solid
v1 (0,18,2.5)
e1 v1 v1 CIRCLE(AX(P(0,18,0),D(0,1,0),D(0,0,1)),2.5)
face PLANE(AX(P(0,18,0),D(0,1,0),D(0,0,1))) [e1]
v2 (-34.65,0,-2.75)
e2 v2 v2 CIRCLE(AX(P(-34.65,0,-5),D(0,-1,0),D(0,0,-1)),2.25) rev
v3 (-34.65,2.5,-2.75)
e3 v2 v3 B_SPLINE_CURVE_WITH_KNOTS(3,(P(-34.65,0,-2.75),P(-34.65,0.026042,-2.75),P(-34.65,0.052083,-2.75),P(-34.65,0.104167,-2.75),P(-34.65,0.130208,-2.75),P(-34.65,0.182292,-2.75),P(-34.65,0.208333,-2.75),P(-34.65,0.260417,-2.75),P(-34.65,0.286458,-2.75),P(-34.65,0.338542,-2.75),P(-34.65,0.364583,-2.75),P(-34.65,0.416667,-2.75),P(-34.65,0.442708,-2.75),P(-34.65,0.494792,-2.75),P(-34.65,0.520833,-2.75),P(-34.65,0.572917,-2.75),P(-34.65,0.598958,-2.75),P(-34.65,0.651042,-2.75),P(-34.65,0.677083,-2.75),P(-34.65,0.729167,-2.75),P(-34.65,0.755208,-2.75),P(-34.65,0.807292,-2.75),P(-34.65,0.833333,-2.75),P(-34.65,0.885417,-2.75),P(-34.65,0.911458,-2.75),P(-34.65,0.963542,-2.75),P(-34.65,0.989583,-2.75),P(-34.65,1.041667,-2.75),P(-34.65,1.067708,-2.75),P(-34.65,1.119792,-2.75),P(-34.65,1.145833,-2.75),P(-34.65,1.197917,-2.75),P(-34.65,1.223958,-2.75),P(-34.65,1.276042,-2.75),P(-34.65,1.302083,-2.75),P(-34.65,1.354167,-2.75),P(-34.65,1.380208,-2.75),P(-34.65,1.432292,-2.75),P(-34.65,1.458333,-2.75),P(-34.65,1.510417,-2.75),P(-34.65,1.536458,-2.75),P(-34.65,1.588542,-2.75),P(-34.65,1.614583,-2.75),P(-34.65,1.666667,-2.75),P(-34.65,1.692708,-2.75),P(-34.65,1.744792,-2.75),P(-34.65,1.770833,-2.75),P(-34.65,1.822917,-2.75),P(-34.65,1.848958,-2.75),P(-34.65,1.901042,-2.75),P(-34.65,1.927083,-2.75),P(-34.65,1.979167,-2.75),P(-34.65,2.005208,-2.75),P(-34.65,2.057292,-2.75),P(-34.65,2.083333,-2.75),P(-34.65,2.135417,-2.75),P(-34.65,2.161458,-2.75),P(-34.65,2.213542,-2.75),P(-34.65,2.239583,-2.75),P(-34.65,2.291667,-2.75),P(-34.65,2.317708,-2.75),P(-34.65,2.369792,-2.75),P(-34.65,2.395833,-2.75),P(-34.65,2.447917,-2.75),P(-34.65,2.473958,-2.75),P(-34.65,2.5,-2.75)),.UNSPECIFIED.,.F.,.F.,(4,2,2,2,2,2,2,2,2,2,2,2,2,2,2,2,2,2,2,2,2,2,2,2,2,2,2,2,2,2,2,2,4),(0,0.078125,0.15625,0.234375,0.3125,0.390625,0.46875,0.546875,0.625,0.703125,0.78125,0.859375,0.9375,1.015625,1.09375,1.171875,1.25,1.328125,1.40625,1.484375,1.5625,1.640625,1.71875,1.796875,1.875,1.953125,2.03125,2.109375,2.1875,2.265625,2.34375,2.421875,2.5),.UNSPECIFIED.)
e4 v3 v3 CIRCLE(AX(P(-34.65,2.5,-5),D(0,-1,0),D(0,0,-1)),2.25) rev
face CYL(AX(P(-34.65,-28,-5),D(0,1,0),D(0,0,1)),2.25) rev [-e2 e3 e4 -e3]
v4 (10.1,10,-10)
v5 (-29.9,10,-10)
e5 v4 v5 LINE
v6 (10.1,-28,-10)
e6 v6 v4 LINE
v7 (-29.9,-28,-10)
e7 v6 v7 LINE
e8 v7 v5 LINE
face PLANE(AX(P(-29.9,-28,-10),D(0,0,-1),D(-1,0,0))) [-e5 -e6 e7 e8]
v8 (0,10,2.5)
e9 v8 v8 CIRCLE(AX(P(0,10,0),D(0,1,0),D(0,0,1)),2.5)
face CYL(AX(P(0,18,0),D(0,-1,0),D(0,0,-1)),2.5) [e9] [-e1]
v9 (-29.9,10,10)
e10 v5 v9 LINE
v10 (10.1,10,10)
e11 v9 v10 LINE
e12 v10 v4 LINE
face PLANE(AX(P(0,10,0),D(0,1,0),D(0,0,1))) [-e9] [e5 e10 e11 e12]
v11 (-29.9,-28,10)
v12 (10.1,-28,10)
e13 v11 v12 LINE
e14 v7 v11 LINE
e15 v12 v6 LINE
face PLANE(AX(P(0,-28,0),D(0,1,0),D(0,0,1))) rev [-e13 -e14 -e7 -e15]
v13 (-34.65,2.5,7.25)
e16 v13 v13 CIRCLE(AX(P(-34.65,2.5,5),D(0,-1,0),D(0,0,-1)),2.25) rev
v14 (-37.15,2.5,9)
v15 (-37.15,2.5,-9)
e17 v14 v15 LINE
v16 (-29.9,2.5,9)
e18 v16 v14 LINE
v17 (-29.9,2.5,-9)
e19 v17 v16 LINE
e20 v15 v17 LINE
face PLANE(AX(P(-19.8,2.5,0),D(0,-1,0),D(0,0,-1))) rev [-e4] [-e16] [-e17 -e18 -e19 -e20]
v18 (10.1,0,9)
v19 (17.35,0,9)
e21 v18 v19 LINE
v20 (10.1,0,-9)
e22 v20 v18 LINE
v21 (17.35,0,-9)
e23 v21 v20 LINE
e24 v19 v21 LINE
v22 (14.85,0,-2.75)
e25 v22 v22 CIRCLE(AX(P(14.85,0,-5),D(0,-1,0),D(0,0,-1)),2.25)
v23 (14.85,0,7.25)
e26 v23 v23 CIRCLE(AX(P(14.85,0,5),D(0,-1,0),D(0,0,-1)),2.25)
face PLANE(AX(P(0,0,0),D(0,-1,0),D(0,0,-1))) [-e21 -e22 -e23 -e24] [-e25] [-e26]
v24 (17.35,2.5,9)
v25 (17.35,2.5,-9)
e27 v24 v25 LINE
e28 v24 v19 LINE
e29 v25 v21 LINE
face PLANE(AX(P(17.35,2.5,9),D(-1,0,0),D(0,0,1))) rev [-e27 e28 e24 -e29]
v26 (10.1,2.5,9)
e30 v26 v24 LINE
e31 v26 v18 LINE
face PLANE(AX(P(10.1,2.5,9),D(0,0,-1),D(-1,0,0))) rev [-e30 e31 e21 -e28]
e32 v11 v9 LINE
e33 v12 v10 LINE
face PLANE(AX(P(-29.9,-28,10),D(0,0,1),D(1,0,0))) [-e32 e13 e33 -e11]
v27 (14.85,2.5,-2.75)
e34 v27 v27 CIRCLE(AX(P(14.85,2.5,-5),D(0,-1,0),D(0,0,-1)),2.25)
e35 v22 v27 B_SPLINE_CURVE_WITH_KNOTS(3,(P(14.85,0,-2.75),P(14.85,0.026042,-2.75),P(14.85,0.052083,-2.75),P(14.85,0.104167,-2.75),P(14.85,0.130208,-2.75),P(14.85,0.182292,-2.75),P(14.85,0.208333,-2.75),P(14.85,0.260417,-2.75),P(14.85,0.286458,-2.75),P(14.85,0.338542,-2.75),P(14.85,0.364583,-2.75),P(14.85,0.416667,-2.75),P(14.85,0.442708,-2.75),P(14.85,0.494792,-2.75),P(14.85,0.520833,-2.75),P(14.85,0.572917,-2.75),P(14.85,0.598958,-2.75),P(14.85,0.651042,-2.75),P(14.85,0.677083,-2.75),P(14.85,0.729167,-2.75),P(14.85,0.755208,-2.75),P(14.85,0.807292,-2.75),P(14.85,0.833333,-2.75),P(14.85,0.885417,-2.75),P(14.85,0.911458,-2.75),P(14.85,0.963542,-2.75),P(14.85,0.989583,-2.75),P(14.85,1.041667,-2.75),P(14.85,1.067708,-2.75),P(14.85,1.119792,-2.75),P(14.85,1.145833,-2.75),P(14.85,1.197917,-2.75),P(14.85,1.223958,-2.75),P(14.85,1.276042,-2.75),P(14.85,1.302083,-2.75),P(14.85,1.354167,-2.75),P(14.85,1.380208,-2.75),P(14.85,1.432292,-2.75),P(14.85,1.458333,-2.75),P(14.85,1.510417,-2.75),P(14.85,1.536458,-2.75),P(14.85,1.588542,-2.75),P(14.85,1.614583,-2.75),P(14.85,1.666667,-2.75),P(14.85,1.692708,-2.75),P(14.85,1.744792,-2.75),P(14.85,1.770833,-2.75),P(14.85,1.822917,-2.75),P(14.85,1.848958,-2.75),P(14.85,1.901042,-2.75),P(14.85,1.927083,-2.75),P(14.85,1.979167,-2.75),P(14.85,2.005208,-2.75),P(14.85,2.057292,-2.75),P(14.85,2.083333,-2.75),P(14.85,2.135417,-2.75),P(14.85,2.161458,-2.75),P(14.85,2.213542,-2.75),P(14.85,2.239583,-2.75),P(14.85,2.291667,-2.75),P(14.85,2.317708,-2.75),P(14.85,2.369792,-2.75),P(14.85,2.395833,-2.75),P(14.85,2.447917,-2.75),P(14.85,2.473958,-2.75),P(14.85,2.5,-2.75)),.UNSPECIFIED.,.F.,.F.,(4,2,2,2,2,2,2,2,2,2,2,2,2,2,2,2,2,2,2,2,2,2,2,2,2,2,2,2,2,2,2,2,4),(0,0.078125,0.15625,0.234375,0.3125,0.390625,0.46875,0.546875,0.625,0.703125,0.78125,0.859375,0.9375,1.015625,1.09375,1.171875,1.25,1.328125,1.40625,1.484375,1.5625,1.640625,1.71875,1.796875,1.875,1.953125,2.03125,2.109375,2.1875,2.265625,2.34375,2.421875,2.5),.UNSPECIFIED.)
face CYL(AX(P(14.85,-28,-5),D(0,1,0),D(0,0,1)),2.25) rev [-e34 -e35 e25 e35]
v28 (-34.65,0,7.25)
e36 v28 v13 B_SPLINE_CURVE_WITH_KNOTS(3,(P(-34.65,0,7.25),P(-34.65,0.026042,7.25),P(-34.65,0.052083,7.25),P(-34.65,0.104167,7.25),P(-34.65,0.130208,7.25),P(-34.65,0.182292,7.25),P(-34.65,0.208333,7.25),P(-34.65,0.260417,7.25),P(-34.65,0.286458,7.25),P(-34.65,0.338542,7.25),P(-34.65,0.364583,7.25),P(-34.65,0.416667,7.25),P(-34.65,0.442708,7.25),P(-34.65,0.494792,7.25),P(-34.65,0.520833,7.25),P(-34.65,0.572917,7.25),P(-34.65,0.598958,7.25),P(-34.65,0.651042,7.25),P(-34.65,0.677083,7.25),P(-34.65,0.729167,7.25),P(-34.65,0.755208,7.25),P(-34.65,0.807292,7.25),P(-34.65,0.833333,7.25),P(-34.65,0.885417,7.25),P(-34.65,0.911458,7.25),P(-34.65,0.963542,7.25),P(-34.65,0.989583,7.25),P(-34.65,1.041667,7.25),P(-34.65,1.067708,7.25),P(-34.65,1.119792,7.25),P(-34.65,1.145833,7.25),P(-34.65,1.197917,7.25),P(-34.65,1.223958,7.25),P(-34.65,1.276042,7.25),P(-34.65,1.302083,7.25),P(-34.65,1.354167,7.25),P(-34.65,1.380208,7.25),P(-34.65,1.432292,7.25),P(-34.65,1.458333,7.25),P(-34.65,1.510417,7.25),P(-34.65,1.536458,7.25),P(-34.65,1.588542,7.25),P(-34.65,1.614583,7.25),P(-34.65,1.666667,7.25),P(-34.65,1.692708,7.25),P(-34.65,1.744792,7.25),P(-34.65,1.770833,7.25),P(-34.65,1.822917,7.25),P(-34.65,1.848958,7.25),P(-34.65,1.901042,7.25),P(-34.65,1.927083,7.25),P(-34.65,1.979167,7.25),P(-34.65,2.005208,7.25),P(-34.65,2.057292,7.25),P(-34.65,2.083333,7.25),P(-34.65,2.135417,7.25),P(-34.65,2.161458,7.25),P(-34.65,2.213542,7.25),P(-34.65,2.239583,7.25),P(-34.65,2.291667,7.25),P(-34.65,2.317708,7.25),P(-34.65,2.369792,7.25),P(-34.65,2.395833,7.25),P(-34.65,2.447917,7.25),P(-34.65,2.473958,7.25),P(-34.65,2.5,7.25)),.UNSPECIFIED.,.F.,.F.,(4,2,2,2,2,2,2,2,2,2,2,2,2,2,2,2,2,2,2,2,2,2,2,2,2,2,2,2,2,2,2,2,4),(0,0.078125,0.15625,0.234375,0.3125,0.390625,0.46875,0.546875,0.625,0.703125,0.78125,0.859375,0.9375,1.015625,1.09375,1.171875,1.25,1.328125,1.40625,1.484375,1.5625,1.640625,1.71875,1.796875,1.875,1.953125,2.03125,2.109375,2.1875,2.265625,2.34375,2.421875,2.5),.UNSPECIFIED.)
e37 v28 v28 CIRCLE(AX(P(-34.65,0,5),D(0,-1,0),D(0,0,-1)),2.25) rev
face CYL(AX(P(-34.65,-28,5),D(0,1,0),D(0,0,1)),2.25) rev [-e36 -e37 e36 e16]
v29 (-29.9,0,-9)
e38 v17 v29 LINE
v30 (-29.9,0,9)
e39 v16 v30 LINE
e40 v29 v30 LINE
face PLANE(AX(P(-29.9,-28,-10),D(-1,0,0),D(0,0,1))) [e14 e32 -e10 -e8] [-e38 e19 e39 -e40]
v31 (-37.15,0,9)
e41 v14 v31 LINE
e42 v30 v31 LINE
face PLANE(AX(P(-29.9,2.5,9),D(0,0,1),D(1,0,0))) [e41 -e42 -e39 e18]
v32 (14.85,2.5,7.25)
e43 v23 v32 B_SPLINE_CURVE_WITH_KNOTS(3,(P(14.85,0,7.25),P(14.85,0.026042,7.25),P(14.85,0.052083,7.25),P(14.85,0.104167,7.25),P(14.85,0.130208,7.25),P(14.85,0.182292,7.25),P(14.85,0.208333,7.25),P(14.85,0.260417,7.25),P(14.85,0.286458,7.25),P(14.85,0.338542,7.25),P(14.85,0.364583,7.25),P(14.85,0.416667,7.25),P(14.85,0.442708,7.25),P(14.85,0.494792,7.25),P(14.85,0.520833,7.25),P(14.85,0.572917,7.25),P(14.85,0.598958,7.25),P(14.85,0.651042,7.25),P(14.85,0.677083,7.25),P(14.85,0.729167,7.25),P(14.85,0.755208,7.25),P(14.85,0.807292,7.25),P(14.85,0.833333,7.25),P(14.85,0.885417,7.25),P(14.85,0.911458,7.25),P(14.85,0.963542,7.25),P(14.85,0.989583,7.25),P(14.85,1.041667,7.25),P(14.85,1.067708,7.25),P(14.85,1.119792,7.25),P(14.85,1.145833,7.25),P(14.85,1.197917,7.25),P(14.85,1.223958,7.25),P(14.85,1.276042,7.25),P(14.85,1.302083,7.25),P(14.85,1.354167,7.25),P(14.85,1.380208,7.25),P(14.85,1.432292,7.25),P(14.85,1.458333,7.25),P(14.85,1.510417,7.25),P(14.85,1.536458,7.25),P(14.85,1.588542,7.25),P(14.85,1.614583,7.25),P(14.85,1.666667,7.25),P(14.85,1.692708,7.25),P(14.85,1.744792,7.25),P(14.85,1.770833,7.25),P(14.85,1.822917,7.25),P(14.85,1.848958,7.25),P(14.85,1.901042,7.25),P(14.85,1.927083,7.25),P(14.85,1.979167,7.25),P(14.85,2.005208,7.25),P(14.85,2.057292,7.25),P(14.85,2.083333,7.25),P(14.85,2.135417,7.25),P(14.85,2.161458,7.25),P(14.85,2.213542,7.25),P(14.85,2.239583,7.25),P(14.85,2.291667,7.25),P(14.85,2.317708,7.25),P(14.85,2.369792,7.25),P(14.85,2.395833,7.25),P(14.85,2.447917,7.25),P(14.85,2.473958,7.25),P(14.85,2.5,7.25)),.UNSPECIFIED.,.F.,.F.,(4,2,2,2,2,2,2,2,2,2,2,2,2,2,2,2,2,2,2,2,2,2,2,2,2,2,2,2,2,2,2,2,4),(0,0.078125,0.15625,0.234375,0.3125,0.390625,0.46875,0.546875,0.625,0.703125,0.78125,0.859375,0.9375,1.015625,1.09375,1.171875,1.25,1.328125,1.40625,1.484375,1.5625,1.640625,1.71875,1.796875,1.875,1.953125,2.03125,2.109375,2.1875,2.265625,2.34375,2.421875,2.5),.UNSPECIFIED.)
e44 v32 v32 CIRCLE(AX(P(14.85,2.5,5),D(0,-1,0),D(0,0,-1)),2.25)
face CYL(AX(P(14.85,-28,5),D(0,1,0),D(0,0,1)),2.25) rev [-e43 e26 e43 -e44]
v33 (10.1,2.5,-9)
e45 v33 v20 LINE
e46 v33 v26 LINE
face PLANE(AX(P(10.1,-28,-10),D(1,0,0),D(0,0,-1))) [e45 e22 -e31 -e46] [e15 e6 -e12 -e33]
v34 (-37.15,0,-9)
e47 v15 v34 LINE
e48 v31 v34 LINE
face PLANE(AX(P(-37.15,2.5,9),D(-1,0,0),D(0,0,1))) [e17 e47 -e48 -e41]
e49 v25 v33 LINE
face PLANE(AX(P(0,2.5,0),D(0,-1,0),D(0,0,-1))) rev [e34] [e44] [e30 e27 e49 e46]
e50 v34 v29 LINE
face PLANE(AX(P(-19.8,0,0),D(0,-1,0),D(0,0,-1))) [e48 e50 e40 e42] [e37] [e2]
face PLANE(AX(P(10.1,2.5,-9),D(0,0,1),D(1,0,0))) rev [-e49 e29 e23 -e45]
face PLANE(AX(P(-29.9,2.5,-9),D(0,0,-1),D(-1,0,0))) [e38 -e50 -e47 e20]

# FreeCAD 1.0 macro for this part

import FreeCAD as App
import Part
import Sketcher

V = App.Vector

doc = App.newDocument("Part")
body = doc.addObject("PartDesign::Body", "Body")

sketch1 = doc.addObject("Sketcher::SketchObject", "Sketch")
body.addObject(sketch1)
sketch1.AttachmentSupport = (doc.XZ_Plane, [""])
sketch1.MapMode = "FlatFace"
sketch1.addGeometry([
    Part.LineSegment(V(-30, -10, 0), V(-30, 10, 0)),
    Part.LineSegment(V(-30, 10, 0), V(10, 10, 0)),
    Part.LineSegment(V(10, 10, 0), V(10, -10, 0)),
    Part.LineSegment(V(10, -10, 0), V(-30, -10, 0)),
], False)
sketch1.addConstraint([
    Sketcher.Constraint("Coincident", 0, 2, 1, 1),
    Sketcher.Constraint("Coincident", 1, 2, 2, 1),
    Sketcher.Constraint("Coincident", 2, 2, 3, 1),
    Sketcher.Constraint("Coincident", 3, 2, 0, 1),
    Sketcher.Constraint("Vertical", 0),
    Sketcher.Constraint("Horizontal", 1),
    Sketcher.Constraint("Vertical", 2),
    Sketcher.Constraint("Horizontal", 3),
    Sketcher.Constraint("DistanceX", 1, 1, 1, 2, 40.0),
    Sketcher.Constraint("DistanceY", 0, 1, 0, 2, 20.0),
    Sketcher.Constraint("DistanceY", -1, 1, 0, 2, 10.0),
    Sketcher.Constraint("DistanceX", 0, 2, -1, 1, 29.9),
])
pad1 = doc.addObject("PartDesign::Pad", "Pad")
body.addObject(pad1)
pad1.Profile = sketch1
pad1.Type = "TwoLengths"
pad1.Length = 10
pad1.Length2 = 28
pad1.Reversed = True

sketch2 = doc.addObject("Sketcher::SketchObject", "Sketch001")
body.addObject(sketch2)
sketch2.AttachmentSupport = (doc.XZ_Plane, [""])
sketch2.MapMode = "FlatFace"
sketch2.AttachmentOffset = App.Placement(V(0, 0, -10), App.Rotation())
sketch2.addGeometry(Part.Circle(V(0, 0, 0), V(0, 0, 1), 2.5), False)
sketch2.addConstraint([
    Sketcher.Constraint("Coincident", 0, 3, -1, 1),
    Sketcher.Constraint("Diameter", 0, 5.0),
])
pad2 = doc.addObject("PartDesign::Pad", "Pad001")
body.addObject(pad2)
pad2.Profile = sketch2
pad2.Length = 8
pad2.Reversed = True

sketch3 = doc.addObject("Sketcher::SketchObject", "Sketch002")
body.addObject(sketch3)
sketch3.AttachmentSupport = (doc.XZ_Plane, [""])
sketch3.MapMode = "FlatFace"
sketch3.addGeometry([
    Part.LineSegment(V(10, -9, 0), V(10, 9, 0)),
    Part.LineSegment(V(10, 9, 0), V(17, 9, 0)),
    Part.LineSegment(V(17, 9, 0), V(17, -9, 0)),
    Part.LineSegment(V(17, -9, 0), V(10, -9, 0)),
], False)
sketch3.addConstraint([
    Sketcher.Constraint("Coincident", 0, 2, 1, 1),
    Sketcher.Constraint("Coincident", 1, 2, 2, 1),
    Sketcher.Constraint("Coincident", 2, 2, 3, 1),
    Sketcher.Constraint("Coincident", 3, 2, 0, 1),
    Sketcher.Constraint("Vertical", 0),
    Sketcher.Constraint("Horizontal", 1),
    Sketcher.Constraint("Vertical", 2),
    Sketcher.Constraint("Horizontal", 3),
    Sketcher.Constraint("DistanceY", 0, 1, 0, 2, 18.0),
    Sketcher.Constraint("DistanceY", -1, 1, 0, 2, 9.0),
    Sketcher.Constraint("DistanceX", 1, 1, 1, 2, 7.25),
    Sketcher.Constraint("DistanceX", -1, 1, 0, 2, 10.1),
])
pad3 = doc.addObject("PartDesign::Pad", "Pad002")
body.addObject(pad3)
pad3.Profile = sketch3
pad3.Length = 2.5
pad3.Reversed = True

sketch4 = doc.addObject("Sketcher::SketchObject", "Sketch003")
body.addObject(sketch4)
sketch4.AttachmentSupport = (doc.XZ_Plane, [""])
sketch4.MapMode = "FlatFace"
sketch4.AttachmentOffset = App.Placement(V(0, 0, -2.5), App.Rotation())
sketch4.addGeometry([
    Part.Circle(V(14.8, 5, 0), V(0, 0, 1), 2.2),
    Part.Circle(V(14.8, -5, 0), V(0, 0, 1), 2.2),
], False)
sketch4.addConstraint([
    Sketcher.Constraint("Equal", 0, 1),
    Sketcher.Constraint("Symmetric", 0, 3, 1, 3, -1),
    Sketcher.Constraint("Diameter", 0, 4.5),
    Sketcher.Constraint("DistanceY", -1, 1, 0, 3, 5.0),
    Sketcher.Constraint("DistanceX", -1, 1, 0, 3, 14.85),
])
pocket1 = doc.addObject("PartDesign::Pocket", "Pocket")
body.addObject(pocket1)
pocket1.Profile = sketch4
pocket1.Length = 89.732776
pocket1.Midplane = True
doc.recompute()

datumplane = doc.addObject("PartDesign::Plane", "DatumPlane")
body.addObject(datumplane)
datumplane.AttachmentSupport = (doc.YZ_Plane, [""])
datumplane.MapMode = "FlatFace"
datumplane.AttachmentOffset = App.Placement(V(0, 0, -9.9), App.Rotation())
mirrored = doc.addObject("PartDesign::Mirrored", "Mirrored")
body.addObject(mirrored)
mirrored.Originals = [pad3, pocket1]
mirrored.MirrorPlane = (datumplane, [""])
body.Tip = mirrored

doc.recompute()
